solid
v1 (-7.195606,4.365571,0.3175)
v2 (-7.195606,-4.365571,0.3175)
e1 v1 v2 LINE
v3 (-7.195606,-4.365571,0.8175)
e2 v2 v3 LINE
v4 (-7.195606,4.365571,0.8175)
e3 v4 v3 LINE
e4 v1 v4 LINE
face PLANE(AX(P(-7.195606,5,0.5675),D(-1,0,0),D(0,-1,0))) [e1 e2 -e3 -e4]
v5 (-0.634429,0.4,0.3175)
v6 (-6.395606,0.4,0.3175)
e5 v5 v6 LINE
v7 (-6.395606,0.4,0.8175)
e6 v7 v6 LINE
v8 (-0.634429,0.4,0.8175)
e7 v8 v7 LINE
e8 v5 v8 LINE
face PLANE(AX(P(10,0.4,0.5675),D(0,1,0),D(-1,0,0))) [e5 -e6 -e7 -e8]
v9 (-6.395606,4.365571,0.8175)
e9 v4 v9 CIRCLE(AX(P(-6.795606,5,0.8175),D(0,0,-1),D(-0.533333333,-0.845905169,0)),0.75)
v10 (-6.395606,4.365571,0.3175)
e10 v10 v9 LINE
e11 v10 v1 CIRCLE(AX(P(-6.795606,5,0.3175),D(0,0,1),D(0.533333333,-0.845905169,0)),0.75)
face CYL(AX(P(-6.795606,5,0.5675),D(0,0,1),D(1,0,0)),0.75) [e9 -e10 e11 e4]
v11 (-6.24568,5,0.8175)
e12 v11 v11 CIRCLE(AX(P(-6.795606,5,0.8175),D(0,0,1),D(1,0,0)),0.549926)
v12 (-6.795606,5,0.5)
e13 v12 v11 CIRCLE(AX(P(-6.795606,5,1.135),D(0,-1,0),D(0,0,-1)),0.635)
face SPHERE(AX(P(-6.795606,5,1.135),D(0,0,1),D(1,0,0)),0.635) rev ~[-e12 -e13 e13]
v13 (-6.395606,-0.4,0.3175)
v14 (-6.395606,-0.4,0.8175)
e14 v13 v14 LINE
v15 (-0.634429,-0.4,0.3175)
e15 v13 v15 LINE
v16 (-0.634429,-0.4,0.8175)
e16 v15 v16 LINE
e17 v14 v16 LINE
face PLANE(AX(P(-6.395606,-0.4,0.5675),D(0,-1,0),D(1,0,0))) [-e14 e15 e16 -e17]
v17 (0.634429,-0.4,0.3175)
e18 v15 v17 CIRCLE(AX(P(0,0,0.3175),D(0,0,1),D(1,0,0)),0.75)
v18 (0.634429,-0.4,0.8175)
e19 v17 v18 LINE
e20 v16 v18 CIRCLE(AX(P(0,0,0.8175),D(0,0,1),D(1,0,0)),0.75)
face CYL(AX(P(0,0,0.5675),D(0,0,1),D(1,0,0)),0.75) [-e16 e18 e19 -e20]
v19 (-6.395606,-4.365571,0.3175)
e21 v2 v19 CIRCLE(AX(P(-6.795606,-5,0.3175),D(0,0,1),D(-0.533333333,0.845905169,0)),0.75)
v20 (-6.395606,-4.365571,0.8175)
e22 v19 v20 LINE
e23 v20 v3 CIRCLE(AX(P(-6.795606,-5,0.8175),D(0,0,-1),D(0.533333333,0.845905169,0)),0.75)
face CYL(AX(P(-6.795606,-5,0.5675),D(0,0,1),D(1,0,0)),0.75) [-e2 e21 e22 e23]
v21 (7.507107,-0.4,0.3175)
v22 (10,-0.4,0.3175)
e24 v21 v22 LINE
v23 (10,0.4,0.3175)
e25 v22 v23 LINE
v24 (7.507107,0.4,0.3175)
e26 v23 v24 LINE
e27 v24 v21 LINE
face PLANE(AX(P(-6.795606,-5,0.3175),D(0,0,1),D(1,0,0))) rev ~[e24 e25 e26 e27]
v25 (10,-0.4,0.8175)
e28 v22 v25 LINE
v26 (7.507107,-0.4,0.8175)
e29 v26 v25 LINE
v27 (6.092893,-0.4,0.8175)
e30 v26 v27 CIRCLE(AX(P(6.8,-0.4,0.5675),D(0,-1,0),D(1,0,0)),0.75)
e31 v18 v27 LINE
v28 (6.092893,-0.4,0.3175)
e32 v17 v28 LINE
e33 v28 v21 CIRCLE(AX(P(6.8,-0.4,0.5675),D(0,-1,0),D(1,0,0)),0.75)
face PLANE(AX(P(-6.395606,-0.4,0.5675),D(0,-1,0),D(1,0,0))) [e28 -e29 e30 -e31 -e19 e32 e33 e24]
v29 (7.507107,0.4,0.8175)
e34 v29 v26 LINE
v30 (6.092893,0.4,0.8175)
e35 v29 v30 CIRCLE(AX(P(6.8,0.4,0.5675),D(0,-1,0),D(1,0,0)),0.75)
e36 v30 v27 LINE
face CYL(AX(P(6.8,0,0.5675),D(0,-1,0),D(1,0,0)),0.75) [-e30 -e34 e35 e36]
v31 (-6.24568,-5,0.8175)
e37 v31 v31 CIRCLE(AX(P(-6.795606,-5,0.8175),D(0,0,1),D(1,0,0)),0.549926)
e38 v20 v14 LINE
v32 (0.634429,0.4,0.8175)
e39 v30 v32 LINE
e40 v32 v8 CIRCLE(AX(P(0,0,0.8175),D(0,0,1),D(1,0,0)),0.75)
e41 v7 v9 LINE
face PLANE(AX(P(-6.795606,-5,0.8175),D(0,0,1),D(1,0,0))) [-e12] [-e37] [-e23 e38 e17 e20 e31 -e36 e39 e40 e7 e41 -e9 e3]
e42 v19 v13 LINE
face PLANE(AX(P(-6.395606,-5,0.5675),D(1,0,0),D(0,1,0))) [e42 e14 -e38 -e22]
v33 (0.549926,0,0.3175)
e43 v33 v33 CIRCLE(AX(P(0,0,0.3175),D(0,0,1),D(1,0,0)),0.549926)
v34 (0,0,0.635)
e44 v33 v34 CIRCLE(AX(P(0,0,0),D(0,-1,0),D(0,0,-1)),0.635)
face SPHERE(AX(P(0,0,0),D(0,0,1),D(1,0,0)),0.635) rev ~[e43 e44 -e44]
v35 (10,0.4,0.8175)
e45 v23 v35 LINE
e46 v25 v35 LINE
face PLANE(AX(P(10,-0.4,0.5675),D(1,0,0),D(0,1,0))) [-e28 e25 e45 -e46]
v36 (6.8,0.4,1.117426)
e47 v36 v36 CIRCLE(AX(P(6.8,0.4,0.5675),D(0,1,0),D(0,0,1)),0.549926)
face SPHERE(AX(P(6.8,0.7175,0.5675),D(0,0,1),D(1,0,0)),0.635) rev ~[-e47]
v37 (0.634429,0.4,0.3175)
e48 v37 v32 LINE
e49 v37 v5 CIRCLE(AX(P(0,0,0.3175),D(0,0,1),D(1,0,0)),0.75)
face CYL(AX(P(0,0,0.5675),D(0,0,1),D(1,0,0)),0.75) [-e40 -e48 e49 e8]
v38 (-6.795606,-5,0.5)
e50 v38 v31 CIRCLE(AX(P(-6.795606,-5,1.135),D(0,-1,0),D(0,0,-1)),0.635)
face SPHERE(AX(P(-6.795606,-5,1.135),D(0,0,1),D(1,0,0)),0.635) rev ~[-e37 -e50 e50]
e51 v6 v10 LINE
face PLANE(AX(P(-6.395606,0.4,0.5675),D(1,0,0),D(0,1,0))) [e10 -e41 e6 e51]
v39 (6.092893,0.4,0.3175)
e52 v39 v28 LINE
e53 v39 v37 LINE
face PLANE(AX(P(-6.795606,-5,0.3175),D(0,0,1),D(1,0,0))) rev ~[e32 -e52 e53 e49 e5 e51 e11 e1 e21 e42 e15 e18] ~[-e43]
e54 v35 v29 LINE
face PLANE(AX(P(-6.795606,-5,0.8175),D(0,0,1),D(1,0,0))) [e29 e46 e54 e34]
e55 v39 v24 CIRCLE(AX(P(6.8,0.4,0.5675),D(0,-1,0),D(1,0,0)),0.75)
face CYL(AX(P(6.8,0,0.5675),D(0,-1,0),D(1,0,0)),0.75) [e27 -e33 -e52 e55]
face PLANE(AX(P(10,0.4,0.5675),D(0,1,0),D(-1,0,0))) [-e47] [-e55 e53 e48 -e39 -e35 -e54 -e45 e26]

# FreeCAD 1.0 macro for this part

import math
import FreeCAD as App
import Part
import Sketcher
Q = App.Units.Quantity


def add_polygon(sketch, points):
    """Adds a closed chain of lines whose ends are joined by coincident constraints."""
    first, n = sketch.GeometryCount, len(points)
    for a, b in zip(points, points[1:] + points[:1]):
        sketch.addGeometry(Part.LineSegment(App.Vector(*a, 0), App.Vector(*b, 0)), False)
    for i in range(n):
        sketch.addConstraint(Sketcher.Constraint("Coincident", first + i, 2, first + (i + 1) % n, 1))

doc = App.newDocument("Part")
body = doc.addObject("PartDesign::Body", "Body")

# Sketch on XY plane
sketch1 = body.newObject("Sketcher::SketchObject", "Sketch")
sketch1.AttachmentSupport = (doc.getObject("XY_Plane"), [""])
sketch1.MapMode = "FlatFace"
sketch1.AttachmentOffset = App.Placement(App.Vector(0, 0, 0.5675), App.Rotation())
add_polygon(sketch1, [(-7.195606, 5), (-7.195606, -5), (-6.395606, -5), (-6.395606, -0.4), (10, -0.4), (10, 0.4), (-6.395606, 0.4), (-6.395606, 5)])  # lines 0-7
sketch1.addConstraint([
    Sketcher.Constraint("Vertical", 0),
    Sketcher.Constraint("Horizontal", 1),
    Sketcher.Constraint("Vertical", 2),
    Sketcher.Constraint("Horizontal", 3),
    Sketcher.Constraint("Vertical", 4),
    Sketcher.Constraint("Horizontal", 5),
    Sketcher.Constraint("Vertical", 6),
    Sketcher.Constraint("Horizontal", 7),
    Sketcher.Constraint("Symmetric", 2, 2, 5, 2, -1),
    Sketcher.Constraint("Equal", 7, 4),
    Sketcher.Constraint("Equal", 2, 6),
    Sketcher.Constraint("DistanceY", 0, 2, 0, 1, Q("10 mm")),
    Sketcher.Constraint("DistanceX", 1, 1, 1, 2, Q("0.8 mm")),
    Sketcher.Constraint("DistanceX", -1, 1, 3, 2, Q("10 mm")),
    Sketcher.Constraint("DistanceX", 3, 1, 3, 2, Q("16.395606 mm")),
])
pad1 = body.newObject("PartDesign::Pad", "Pad")
pad1.Profile = sketch1
pad1.Length = 0.5
pad1.Midplane = True

# Sketch on XY plane
sketch2 = body.newObject("Sketcher::SketchObject", "Sketch001")
sketch2.AttachmentSupport = (doc.getObject("XY_Plane"), [""])
sketch2.MapMode = "FlatFace"
sketch2.AttachmentOffset = App.Placement(App.Vector(0, 0, 0.5675), App.Rotation())
sketch2.addGeometry(Part.Circle(App.Vector(0, 0, 0), App.Vector(0, 0, 1), 0.75), False)
sketch2.addConstraint([
    Sketcher.Constraint("Coincident", 0, 3, -1, 1),
    Sketcher.Constraint("Diameter", 0, Q("1.5 mm")),
])
pad2 = body.newObject("PartDesign::Pad", "Pad001")
pad2.Profile = sketch2
pad2.Length = 0.5
pad2.Midplane = True

# Sketch on XY plane
sketch3 = body.newObject("Sketcher::SketchObject", "Sketch002")
sketch3.AttachmentSupport = (doc.getObject("XY_Plane"), [""])
sketch3.MapMode = "FlatFace"
sketch3.AttachmentOffset = App.Placement(App.Vector(0, 0, 0.5675), App.Rotation())
sketch3.addGeometry(Part.Circle(App.Vector(-6.795606, 5, 0), App.Vector(0, 0, 1), 0.75), False)
sketch3.addConstraint([
    Sketcher.Constraint("Diameter", 0, Q("1.5 mm")),
    Sketcher.Constraint("DistanceY", -1, 1, 0, 3, Q("5 mm")),
    Sketcher.Constraint("DistanceX", 0, 3, -1, 1, Q("6.795606 mm")),
])
pad3 = body.newObject("PartDesign::Pad", "Pad002")
pad3.Profile = sketch3
pad3.Length = 0.5
pad3.Midplane = True

# Sketch on XY plane
sketch4 = body.newObject("Sketcher::SketchObject", "Sketch003")
sketch4.AttachmentSupport = (doc.getObject("XY_Plane"), [""])
sketch4.MapMode = "FlatFace"
sketch4.AttachmentOffset = App.Placement(App.Vector(0, 0, 0.5675), App.Rotation())
sketch4.addGeometry(Part.Circle(App.Vector(-6.795606, -5, 0), App.Vector(0, 0, 1), 0.75), False)
sketch4.addConstraint([
    Sketcher.Constraint("Diameter", 0, Q("1.5 mm")),
    Sketcher.Constraint("DistanceY", 0, 3, -1, 1, Q("5 mm")),
    Sketcher.Constraint("DistanceX", 0, 3, -1, 1, Q("6.795606 mm")),
])
pad4 = body.newObject("PartDesign::Pad", "Pad003")
pad4.Profile = sketch4
pad4.Length = 0.5
pad4.Midplane = True

# Sketch on XZ plane
sketch5 = body.newObject("Sketcher::SketchObject", "Sketch004")
sketch5.AttachmentSupport = (doc.getObject("XZ_Plane"), [""])
sketch5.MapMode = "FlatFace"
sketch5.addGeometry([
    Part.ArcOfCircle(Part.Circle(App.Vector(0, 0, 0), App.Vector(0, 0, 1), 0.635), math.radians(-90), math.radians(90)),
    Part.LineSegment(App.Vector(0, 0.635, 0), App.Vector(0, -0.635, 0)),
], False)
sketch5.addConstraint([
    Sketcher.Constraint("Coincident", 0, 1, 1, 2),
    Sketcher.Constraint("Coincident", 1, 1, 0, 2),
    Sketcher.Constraint("Vertical", 1),
    Sketcher.Constraint("Coincident", 0, 3, -1, 1),
    Sketcher.Constraint("PointOnObject", 0, 1, -2),
    Sketcher.Constraint("Radius", 0, Q("0.635 mm")),
])
groove = body.newObject("PartDesign::Groove", "Groove")
groove.Profile = sketch5
groove.ReferenceAxis = (sketch5, ["V_Axis"])
groove.Angle = 360

# Sketch on XZ plane
sketch6 = body.newObject("Sketcher::SketchObject", "Sketch005")
sketch6.AttachmentSupport = (doc.getObject("XZ_Plane"), [""])
sketch6.MapMode = "FlatFace"
sketch6.AttachmentOffset = App.Placement(App.Vector(0, 0, -5), App.Rotation())
sketch6.addGeometry([
    Part.ArcOfCircle(Part.Circle(App.Vector(-6.795606, 1.135, 0), App.Vector(0, 0, 1), 0.635), math.radians(-90), math.radians(90)),
    Part.LineSegment(App.Vector(-6.795606, 1.77, 0), App.Vector(-6.795606, 0.5, 0)),
], False)
sketch6.addGeometry(Part.LineSegment(App.Vector(-6.795606, 0.5, 0), App.Vector(-6.795606, 1.77, 0)), True)  # axis
sketch6.addConstraint([
    Sketcher.Constraint("Coincident", 0, 1, 1, 2),
    Sketcher.Constraint("Coincident", 1, 1, 0, 2),
    Sketcher.Constraint("Vertical", 1),
    Sketcher.Constraint("Vertical", 2),
    Sketcher.Constraint("Coincident", 2, 1, 0, 1),
    Sketcher.Constraint("Equal", 1, 2),
    Sketcher.Constraint("Radius", 0, Q("0.635 mm")),
    Sketcher.Constraint("DistanceY", -1, 1, 0, 1, Q("0.5 mm")),
    Sketcher.Constraint("DistanceX", 0, 3, -1, 1, Q("6.795606 mm")),
    Sketcher.Constraint("DistanceX", 0, 1, -1, 1, Q("6.795606 mm")),
])
groove2 = body.newObject("PartDesign::Groove", "Groove001")
groove2.Profile = sketch6
groove2.ReferenceAxis = (sketch6, ["Axis0"])
groove2.Angle = 360

# Sketch on XZ plane
sketch7 = body.newObject("Sketcher::SketchObject", "Sketch006")
sketch7.AttachmentSupport = (doc.getObject("XZ_Plane"), [""])
sketch7.MapMode = "FlatFace"
sketch7.AttachmentOffset = App.Placement(App.Vector(0, 0, 5), App.Rotation())
sketch7.addGeometry([
    Part.ArcOfCircle(Part.Circle(App.Vector(-6.795606, 1.135, 0), App.Vector(0, 0, 1), 0.635), math.radians(-90), math.radians(90)),
    Part.LineSegment(App.Vector(-6.795606, 1.77, 0), App.Vector(-6.795606, 0.5, 0)),
], False)
sketch7.addGeometry(Part.LineSegment(App.Vector(-6.795606, 0.5, 0), App.Vector(-6.795606, 1.77, 0)), True)  # axis
sketch7.addConstraint([
    Sketcher.Constraint("Coincident", 0, 1, 1, 2),
    Sketcher.Constraint("Coincident", 1, 1, 0, 2),
    Sketcher.Constraint("Vertical", 1),
    Sketcher.Constraint("Vertical", 2),
    Sketcher.Constraint("Coincident", 2, 1, 0, 1),
    Sketcher.Constraint("Equal", 1, 2),
    Sketcher.Constraint("Radius", 0, Q("0.635 mm")),
    Sketcher.Constraint("DistanceY", -1, 1, 0, 1, Q("0.5 mm")),
    Sketcher.Constraint("DistanceX", 0, 3, -1, 1, Q("6.795606 mm")),
    Sketcher.Constraint("DistanceX", 0, 1, -1, 1, Q("6.795606 mm")),
])
groove3 = body.newObject("PartDesign::Groove", "Groove002")
groove3.Profile = sketch7
groove3.ReferenceAxis = (sketch7, ["Axis0"])
groove3.Angle = 360

# Sketch on XZ plane
sketch8 = body.newObject("Sketcher::SketchObject", "Sketch007")
sketch8.AttachmentSupport = (doc.getObject("XZ_Plane"), [""])
sketch8.MapMode = "FlatFace"
sketch8.addGeometry(Part.Circle(App.Vector(6.8, 0.5675, 0), App.Vector(0, 0, 1), 0.75), False)
sketch8.addConstraint([
    Sketcher.Constraint("Diameter", 0, Q("1.5 mm")),
    Sketcher.Constraint("DistanceX", -1, 1, 0, 3, Q("6.8 mm")),
    Sketcher.Constraint("DistanceY", -1, 1, 0, 3, Q("0.5675 mm")),
])
pad5 = body.newObject("PartDesign::Pad", "Pad004")
pad5.Profile = sketch8
pad5.Length = 0.8
pad5.Midplane = True

# Sketch on XZ plane
sketch9 = body.newObject("Sketcher::SketchObject", "Sketch008")
sketch9.AttachmentSupport = (doc.getObject("XZ_Plane"), [""])
sketch9.MapMode = "FlatFace"
sketch9.AttachmentOffset = App.Placement(App.Vector(0, 0, -0.7175), App.Rotation())
sketch9.addGeometry([
    Part.ArcOfCircle(Part.Circle(App.Vector(6.8, 0.5675, 0), App.Vector(0, 0, 1), 0.635), math.radians(-90), math.radians(90)),
    Part.LineSegment(App.Vector(6.8, 1.2025, 0), App.Vector(6.8, -0.0675, 0)),
], False)
sketch9.addGeometry(Part.LineSegment(App.Vector(6.8, -0.0675, 0), App.Vector(6.8, 1.2025, 0)), True)  # axis
sketch9.addConstraint([
    Sketcher.Constraint("Coincident", 0, 1, 1, 2),
    Sketcher.Constraint("Coincident", 1, 1, 0, 2),
    Sketcher.Constraint("Vertical", 1),
    Sketcher.Constraint("Vertical", 2),
    Sketcher.Constraint("Coincident", 2, 1, 0, 1),
    Sketcher.Constraint("Equal", 1, 2),
    Sketcher.Constraint("Radius", 0, Q("0.635 mm")),
    Sketcher.Constraint("DistanceX", -1, 1, 0, 3, Q("6.8 mm")),
    Sketcher.Constraint("DistanceX", -1, 1, 0, 1, Q("6.8 mm")),
    Sketcher.Constraint("DistanceY", -1, 1, 0, 3, Q("0.5675 mm")),
])
groove4 = body.newObject("PartDesign::Groove", "Groove003")
groove4.Profile = sketch9
groove4.ReferenceAxis = (sketch9, ["Axis0"])
groove4.Angle = 360

doc.recompute()
